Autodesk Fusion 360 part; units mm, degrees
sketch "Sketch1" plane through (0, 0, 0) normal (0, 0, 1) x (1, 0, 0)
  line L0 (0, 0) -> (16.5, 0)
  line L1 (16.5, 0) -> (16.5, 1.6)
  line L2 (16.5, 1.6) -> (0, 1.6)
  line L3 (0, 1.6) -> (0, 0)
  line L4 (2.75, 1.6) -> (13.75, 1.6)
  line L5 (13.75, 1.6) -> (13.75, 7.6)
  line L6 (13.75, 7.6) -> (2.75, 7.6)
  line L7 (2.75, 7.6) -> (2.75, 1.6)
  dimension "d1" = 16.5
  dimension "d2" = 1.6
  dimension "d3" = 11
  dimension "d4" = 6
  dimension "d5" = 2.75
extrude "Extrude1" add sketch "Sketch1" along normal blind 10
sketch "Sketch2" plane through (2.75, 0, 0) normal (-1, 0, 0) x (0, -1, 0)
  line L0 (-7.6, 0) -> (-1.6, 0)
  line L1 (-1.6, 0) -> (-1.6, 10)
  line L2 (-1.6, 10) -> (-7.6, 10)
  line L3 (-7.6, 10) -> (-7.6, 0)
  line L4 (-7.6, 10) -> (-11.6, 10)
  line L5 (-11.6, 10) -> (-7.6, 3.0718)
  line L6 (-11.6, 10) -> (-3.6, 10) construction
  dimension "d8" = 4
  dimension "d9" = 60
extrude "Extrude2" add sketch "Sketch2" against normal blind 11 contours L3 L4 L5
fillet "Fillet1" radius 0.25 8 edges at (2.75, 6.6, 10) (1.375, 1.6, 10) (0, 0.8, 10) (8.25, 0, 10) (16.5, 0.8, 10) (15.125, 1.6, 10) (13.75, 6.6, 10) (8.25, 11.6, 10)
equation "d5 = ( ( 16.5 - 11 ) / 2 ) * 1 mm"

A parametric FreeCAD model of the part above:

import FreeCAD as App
import Part
import Sketcher
from FreeCAD import Vector
Q = App.Units.Quantity


def edges_at(feature, points):
    """Names of the edges that pass closest to the given points."""
    edges = feature.Shape.Edges
    near = lambda p: min(range(len(edges)), key=lambda i: edges[i].distToShape(Part.Vertex(*p))[0])
    return sorted({f"Edge{near(p) + 1}" for p in points})

doc = App.newDocument("Part")
body = doc.addObject("PartDesign::Body", "Body")

# Sketch on XY plane
sketch1 = body.newObject("Sketcher::SketchObject", "Sketch")
sketch1.AttachmentSupport = (doc.getObject("XY_Plane"), [""])
sketch1.MapMode = "FlatFace"
sketch1.addGeometry(Part.LineSegment(Vector(0, 1.6, 0), Vector(0, 0, 0)), False)
sketch1.addGeometry(Part.LineSegment(Vector(0, 0, 0), Vector(16.5, 0, 0)), False)
sketch1.addGeometry(Part.LineSegment(Vector(16.5, 0, 0), Vector(16.5, 1.6, 0)), False)
sketch1.addGeometry(Part.LineSegment(Vector(16.5, 1.6, 0), Vector(13.75, 1.6, 0)), False)
sketch1.addGeometry(Part.LineSegment(Vector(13.75, 1.6, 0), Vector(13.75, 7.6, 0)), False)
sketch1.addGeometry(Part.LineSegment(Vector(13.75, 7.6, 0), Vector(2.75, 7.6, 0)), False)
sketch1.addGeometry(Part.LineSegment(Vector(2.75, 7.6, 0), Vector(2.75, 1.6, 0)), False)
sketch1.addGeometry(Part.LineSegment(Vector(2.75, 1.6, 0), Vector(0, 1.6, 0)), False)
sketch1.addConstraint(Sketcher.Constraint("Coincident", 0, 2, 1, 1))
sketch1.addConstraint(Sketcher.Constraint("Coincident", 1, 2, 2, 1))
sketch1.addConstraint(Sketcher.Constraint("Coincident", 2, 2, 3, 1))
sketch1.addConstraint(Sketcher.Constraint("Coincident", 3, 2, 4, 1))
sketch1.addConstraint(Sketcher.Constraint("Coincident", 4, 2, 5, 1))
sketch1.addConstraint(Sketcher.Constraint("Coincident", 5, 2, 6, 1))
sketch1.addConstraint(Sketcher.Constraint("Coincident", 6, 2, 7, 1))
sketch1.addConstraint(Sketcher.Constraint("Coincident", 7, 2, 0, 1))
sketch1.addConstraint(Sketcher.Constraint("Vertical", 0))
sketch1.addConstraint(Sketcher.Constraint("Horizontal", 1))
sketch1.addConstraint(Sketcher.Constraint("Vertical", 2))
sketch1.addConstraint(Sketcher.Constraint("Horizontal", 3))
sketch1.addConstraint(Sketcher.Constraint("Vertical", 4))
sketch1.addConstraint(Sketcher.Constraint("Horizontal", 5))
sketch1.addConstraint(Sketcher.Constraint("Vertical", 6))
sketch1.addConstraint(Sketcher.Constraint("Horizontal", 7))
sketch1.addConstraint(Sketcher.Constraint("Coincident", 0, 2, -1, 1))
sketch1.addConstraint(Sketcher.Constraint("Horizontal", 3, 2, 6, 2))
sketch1.addConstraint(Sketcher.Constraint("Equal", 3, 7))
sketch1.addConstraint(Sketcher.Constraint("DistanceX", 5, 2, 5, 1, 11.0))
sketch1.addConstraint(Sketcher.Constraint("DistanceY", 4, 1, 4, 2, 6.0))
sketch1.addConstraint(Sketcher.Constraint("DistanceX", 1, 1, 1, 2, 16.5))
sketch1.addConstraint(Sketcher.Constraint("DistanceY", 0, 2, 0, 1, 1.6))
pad1 = body.newObject("PartDesign::Pad", "Pad")
pad1.Profile = sketch1
pad1.Length = 10

# Sketch on YZ plane
sketch2 = body.newObject("Sketcher::SketchObject", "Sketch001")
sketch2.AttachmentSupport = (doc.getObject("YZ_Plane"), [""])
sketch2.MapMode = "FlatFace"
sketch2.AttachmentOffset = App.Placement(Vector(0, 0, 2.75), App.Rotation())
sketch2.addGeometry(Part.LineSegment(Vector(11.6, 10, 0), Vector(7.6, 3.0718, 0)), False)
sketch2.addGeometry(Part.LineSegment(Vector(7.6, 3.0718, 0), Vector(7.6, 10, 0)), False)
sketch2.addGeometry(Part.LineSegment(Vector(7.6, 10, 0), Vector(11.6, 10, 0)), False)
sketch2.addConstraint(Sketcher.Constraint("Coincident", 0, 2, 1, 1))
sketch2.addConstraint(Sketcher.Constraint("Coincident", 1, 2, 2, 1))
sketch2.addConstraint(Sketcher.Constraint("Coincident", 2, 2, 0, 1))
sketch2.addConstraint(Sketcher.Constraint("Vertical", 1))
sketch2.addConstraint(Sketcher.Constraint("Horizontal", 2))
sketch2.addConstraint(Sketcher.Constraint("DistanceX", 2, 1, 2, 2, 4.0))
sketch2.addConstraint(Sketcher.Constraint("Angle", 0, Q("-120 deg")))
sketch2.addConstraint(Sketcher.Constraint("DistanceY", -1, 1, 1, 2, 10.0))
sketch2.addConstraint(Sketcher.Constraint("DistanceX", -1, 1, 0, 2, 7.6))
pad2 = body.newObject("PartDesign::Pad", "Pad001")
pad2.Profile = sketch2
pad2.Length = 11
doc.recompute()

fillet = body.newObject("PartDesign::Fillet", "Fillet")
fillet.Base = (pad2, edges_at(pad2, [
    (2.75, 6.6, 10),
    (1.375, 1.6, 10),
    (0, 0.8, 10),
    (8.25, 0, 10),
    (16.5, 0.8, 10),
    (15.125, 1.6, 10),
    (13.75, 6.6, 10),
    (8.25, 11.6, 10),
]))
fillet.Radius = 0.25

doc.recompute()
